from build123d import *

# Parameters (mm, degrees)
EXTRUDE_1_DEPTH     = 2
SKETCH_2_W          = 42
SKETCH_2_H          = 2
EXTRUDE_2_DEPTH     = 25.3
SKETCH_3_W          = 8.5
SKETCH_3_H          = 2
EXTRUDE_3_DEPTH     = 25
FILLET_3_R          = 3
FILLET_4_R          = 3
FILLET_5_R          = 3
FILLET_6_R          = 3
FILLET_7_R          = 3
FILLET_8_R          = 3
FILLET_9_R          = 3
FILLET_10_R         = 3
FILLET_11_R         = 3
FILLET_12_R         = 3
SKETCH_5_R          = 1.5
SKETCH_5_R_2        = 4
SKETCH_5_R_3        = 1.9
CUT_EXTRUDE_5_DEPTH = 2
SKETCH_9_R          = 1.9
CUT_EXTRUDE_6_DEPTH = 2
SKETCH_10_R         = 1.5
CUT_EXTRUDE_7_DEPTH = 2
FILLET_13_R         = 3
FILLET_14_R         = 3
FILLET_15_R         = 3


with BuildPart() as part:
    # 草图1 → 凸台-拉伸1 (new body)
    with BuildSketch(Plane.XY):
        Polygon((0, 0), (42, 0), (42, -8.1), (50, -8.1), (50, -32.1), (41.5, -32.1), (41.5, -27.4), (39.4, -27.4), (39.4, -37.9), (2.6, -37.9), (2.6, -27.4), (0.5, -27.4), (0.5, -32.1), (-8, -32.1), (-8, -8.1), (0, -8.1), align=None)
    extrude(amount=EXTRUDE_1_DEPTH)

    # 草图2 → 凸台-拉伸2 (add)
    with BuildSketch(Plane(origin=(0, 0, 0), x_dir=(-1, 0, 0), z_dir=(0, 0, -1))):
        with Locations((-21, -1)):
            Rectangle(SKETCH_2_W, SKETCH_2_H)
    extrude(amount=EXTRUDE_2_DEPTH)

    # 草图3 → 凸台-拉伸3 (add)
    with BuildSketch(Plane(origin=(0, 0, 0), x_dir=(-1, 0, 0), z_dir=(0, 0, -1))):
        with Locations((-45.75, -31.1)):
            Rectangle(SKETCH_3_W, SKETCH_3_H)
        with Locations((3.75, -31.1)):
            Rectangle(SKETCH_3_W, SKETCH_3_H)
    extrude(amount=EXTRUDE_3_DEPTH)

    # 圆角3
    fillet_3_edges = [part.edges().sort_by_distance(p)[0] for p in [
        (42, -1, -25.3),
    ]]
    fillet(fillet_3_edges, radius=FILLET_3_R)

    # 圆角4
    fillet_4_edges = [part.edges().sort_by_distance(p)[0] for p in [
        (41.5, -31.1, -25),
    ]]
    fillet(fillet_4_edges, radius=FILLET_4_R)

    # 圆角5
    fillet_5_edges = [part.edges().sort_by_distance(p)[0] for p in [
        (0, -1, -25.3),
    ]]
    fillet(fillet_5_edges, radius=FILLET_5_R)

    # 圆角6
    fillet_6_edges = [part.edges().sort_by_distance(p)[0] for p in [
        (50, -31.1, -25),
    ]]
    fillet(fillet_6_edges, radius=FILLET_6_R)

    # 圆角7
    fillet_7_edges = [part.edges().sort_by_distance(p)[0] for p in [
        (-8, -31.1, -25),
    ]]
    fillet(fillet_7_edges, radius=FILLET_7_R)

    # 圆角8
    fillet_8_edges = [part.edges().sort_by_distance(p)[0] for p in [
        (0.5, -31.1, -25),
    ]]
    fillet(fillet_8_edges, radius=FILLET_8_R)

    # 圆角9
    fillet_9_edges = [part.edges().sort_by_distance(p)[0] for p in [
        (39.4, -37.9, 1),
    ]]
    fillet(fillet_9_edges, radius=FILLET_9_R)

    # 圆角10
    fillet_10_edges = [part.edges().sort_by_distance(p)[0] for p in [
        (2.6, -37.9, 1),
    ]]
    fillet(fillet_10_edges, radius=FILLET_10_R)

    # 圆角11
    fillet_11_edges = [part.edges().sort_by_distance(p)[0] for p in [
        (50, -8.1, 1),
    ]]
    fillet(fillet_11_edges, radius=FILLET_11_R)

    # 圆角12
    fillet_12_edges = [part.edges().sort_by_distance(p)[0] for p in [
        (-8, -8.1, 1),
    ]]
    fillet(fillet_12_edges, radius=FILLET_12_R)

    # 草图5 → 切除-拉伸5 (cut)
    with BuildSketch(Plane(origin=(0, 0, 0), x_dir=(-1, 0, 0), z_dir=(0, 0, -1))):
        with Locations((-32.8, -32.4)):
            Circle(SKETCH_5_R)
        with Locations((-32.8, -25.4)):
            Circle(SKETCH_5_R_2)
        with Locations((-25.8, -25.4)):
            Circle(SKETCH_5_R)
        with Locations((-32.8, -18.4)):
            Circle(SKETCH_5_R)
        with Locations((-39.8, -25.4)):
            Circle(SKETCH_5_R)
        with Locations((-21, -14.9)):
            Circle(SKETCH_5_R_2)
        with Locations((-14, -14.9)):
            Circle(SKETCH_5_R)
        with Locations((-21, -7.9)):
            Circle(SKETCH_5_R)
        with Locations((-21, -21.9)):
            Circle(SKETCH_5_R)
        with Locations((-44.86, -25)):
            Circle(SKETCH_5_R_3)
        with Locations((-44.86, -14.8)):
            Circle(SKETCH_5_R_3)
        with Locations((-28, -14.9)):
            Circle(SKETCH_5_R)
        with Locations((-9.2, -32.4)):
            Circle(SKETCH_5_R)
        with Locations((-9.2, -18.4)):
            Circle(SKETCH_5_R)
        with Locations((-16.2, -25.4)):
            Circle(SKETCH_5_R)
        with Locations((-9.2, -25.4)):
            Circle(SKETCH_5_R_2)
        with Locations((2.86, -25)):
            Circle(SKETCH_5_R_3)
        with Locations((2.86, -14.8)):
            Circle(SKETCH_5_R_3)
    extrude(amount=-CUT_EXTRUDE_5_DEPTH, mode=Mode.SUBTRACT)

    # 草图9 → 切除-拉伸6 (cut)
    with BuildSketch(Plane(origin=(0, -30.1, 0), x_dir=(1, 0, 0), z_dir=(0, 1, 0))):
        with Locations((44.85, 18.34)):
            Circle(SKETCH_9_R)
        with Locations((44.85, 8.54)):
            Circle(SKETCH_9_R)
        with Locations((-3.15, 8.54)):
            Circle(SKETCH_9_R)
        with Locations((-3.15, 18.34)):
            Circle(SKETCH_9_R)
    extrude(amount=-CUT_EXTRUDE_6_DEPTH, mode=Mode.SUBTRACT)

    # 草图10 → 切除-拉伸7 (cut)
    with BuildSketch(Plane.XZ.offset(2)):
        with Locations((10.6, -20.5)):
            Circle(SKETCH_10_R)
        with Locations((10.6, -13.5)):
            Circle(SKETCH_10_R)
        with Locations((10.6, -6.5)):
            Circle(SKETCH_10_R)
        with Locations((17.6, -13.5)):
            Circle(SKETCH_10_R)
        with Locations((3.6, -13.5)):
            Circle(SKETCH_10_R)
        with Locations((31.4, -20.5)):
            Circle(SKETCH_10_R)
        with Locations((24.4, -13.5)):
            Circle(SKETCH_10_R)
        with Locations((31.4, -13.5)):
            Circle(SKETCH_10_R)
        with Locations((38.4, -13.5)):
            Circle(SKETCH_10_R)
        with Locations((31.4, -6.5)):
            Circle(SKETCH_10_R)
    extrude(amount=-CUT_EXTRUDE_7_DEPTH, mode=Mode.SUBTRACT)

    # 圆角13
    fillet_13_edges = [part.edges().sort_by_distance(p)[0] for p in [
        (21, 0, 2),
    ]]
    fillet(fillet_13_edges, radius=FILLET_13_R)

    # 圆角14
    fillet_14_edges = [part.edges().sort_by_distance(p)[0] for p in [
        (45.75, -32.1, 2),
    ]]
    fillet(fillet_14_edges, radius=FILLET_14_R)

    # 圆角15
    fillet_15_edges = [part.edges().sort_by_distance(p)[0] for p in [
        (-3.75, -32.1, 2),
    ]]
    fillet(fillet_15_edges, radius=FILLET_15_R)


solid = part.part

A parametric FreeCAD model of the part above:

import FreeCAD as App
import Part
import Sketcher

V = App.Vector


def edges_at(feature, points):
    """Names of the edges that pass closest to the given points."""
    edges = feature.Shape.Edges
    near = lambda p: min(range(len(edges)), key=lambda i: edges[i].distToShape(Part.Vertex(*p))[0])
    return sorted({f"Edge{near(p) + 1}" for p in points})

doc = App.newDocument("Part")
body = doc.addObject("PartDesign::Body", "Body")

# Sketch on XY plane
sketch1 = doc.addObject("Sketcher::SketchObject", "Sketch")
body.addObject(sketch1)
sketch1.AttachmentSupport = (doc.XY_Plane, [""])
sketch1.MapMode = "FlatFace"
sketch1.addGeometry([
    Part.LineSegment(V(42, 0, 0), V(0, 0, 0)),  # 0
    Part.LineSegment(V(0, 0, 0), V(0, -8.1, 0)),  # 1
    Part.LineSegment(V(0, -8.1, 0), V(-8, -8.1, 0)),  # 2
    Part.LineSegment(V(-8, -8.1, 0), V(-8, -32.1, 0)),  # 3
    Part.LineSegment(V(-8, -32.1, 0), V(0.5, -32.1, 0)),  # 4
    Part.LineSegment(V(0.5, -32.1, 0), V(0.5, -27.4, 0)),  # 5
    Part.LineSegment(V(0.5, -27.4, 0), V(2.6, -27.4, 0)),  # 6
    Part.LineSegment(V(2.6, -27.4, 0), V(2.6, -37.9, 0)),  # 7
    Part.LineSegment(V(2.6, -37.9, 0), V(39.4, -37.9, 0)),  # 8
    Part.LineSegment(V(39.4, -37.9, 0), V(39.4, -27.4, 0)),  # 9
    Part.LineSegment(V(39.4, -27.4, 0), V(41.5, -27.4, 0)),  # 10
    Part.LineSegment(V(41.5, -27.4, 0), V(41.5, -32.1, 0)),  # 11
    Part.LineSegment(V(41.5, -32.1, 0), V(50, -32.1, 0)),  # 12
    Part.LineSegment(V(50, -32.1, 0), V(50, -8.1, 0)),  # 13
    Part.LineSegment(V(50, -8.1, 0), V(42, -8.1, 0)),  # 14
    Part.LineSegment(V(42, -8.1, 0), V(42, 0, 0)),  # 15
], False)
sketch1.addConstraint([
    Sketcher.Constraint("Coincident", 0, 2, 1, 1),
    Sketcher.Constraint("Coincident", 1, 2, 2, 1),
    Sketcher.Constraint("Coincident", 2, 2, 3, 1),
    Sketcher.Constraint("Coincident", 3, 2, 4, 1),
    Sketcher.Constraint("Coincident", 4, 2, 5, 1),
    Sketcher.Constraint("Coincident", 5, 2, 6, 1),
    Sketcher.Constraint("Coincident", 6, 2, 7, 1),
    Sketcher.Constraint("Coincident", 7, 2, 8, 1),
    Sketcher.Constraint("Coincident", 8, 2, 9, 1),
    Sketcher.Constraint("Coincident", 9, 2, 10, 1),
    Sketcher.Constraint("Coincident", 10, 2, 11, 1),
    Sketcher.Constraint("Coincident", 11, 2, 12, 1),
    Sketcher.Constraint("Coincident", 12, 2, 13, 1),
    Sketcher.Constraint("Coincident", 13, 2, 14, 1),
    Sketcher.Constraint("Coincident", 14, 2, 15, 1),
    Sketcher.Constraint("Coincident", 15, 2, 0, 1),
    Sketcher.Constraint("Horizontal", 0),
    Sketcher.Constraint("Vertical", 1),
    Sketcher.Constraint("Horizontal", 2),
    Sketcher.Constraint("Vertical", 3),
    Sketcher.Constraint("Horizontal", 4),
    Sketcher.Constraint("Vertical", 5),
    Sketcher.Constraint("Horizontal", 6),
    Sketcher.Constraint("Vertical", 7),
    Sketcher.Constraint("Horizontal", 8),
    Sketcher.Constraint("Vertical", 9),
    Sketcher.Constraint("Horizontal", 10),
    Sketcher.Constraint("Vertical", 11),
    Sketcher.Constraint("Horizontal", 12),
    Sketcher.Constraint("Vertical", 13),
    Sketcher.Constraint("Horizontal", 14),
    Sketcher.Constraint("Vertical", 15),
    Sketcher.Constraint("Coincident", 0, 2, -1, 1),
    Sketcher.Constraint("Horizontal", 6, 2, 9, 2),
    Sketcher.Constraint("Horizontal", 4, 2, 11, 2),
    Sketcher.Constraint("Horizontal", 2, 2, 13, 2),
    Sketcher.Constraint("Equal", 6, 10),
    Sketcher.Constraint("Equal", 4, 12),
    Sketcher.Constraint("Equal", 2, 14),
    Sketcher.Constraint("DistanceX", 0, 2, 0, 1, 42.0),
    Sketcher.Constraint("DistanceX", 2, 2, 2, 1, 8.0),
    Sketcher.Constraint("DistanceY", 3, 2, 3, 1, 24.0),
    Sketcher.Constraint("DistanceX", 4, 1, 4, 2, 8.5),
    Sketcher.Constraint("DistanceX", 6, 1, 6, 2, 2.1),
    Sketcher.Constraint("DistanceY", 1, 2, 1, 1, 8.1),
    Sketcher.Constraint("DistanceY", 5, 1, 5, 2, 4.7),
    Sketcher.Constraint("DistanceY", 7, 2, 7, 1, 10.5),
])
pad1 = doc.addObject("PartDesign::Pad", "Pad")
body.addObject(pad1)
pad1.Profile = sketch1
pad1.Length = 2

# Sketch on XY plane
sketch2 = doc.addObject("Sketcher::SketchObject", "Sketch001")
body.addObject(sketch2)
sketch2.AttachmentSupport = (doc.XY_Plane, [""])
sketch2.MapMode = "FlatFace"
sketch2.addGeometry([
    Part.LineSegment(V(42, 0, 0), V(42, -2, 0)),
    Part.LineSegment(V(42, -2, 0), V(0, -2, 0)),
    Part.LineSegment(V(0, -2, 0), V(0, 0, 0)),
    Part.LineSegment(V(0, 0, 0), V(42, 0, 0)),
], False)
sketch2.addConstraint([
    Sketcher.Constraint("Coincident", 0, 2, 1, 1),
    Sketcher.Constraint("Coincident", 1, 2, 2, 1),
    Sketcher.Constraint("Coincident", 2, 2, 3, 1),
    Sketcher.Constraint("Coincident", 3, 2, 0, 1),
    Sketcher.Constraint("Vertical", 0),
    Sketcher.Constraint("Horizontal", 1),
    Sketcher.Constraint("Vertical", 2),
    Sketcher.Constraint("Horizontal", 3),
    Sketcher.Constraint("Coincident", 2, 2, -1, 1),
    Sketcher.Constraint("DistanceX", 1, 2, 1, 1, 42.0),
    Sketcher.Constraint("DistanceY", 0, 2, 0, 1, 2.0),
])
pad2 = doc.addObject("PartDesign::Pad", "Pad001")
body.addObject(pad2)
pad2.Profile = sketch2
pad2.Length = 25.3
pad2.Reversed = True

# Sketch on XY plane
sketch3 = doc.addObject("Sketcher::SketchObject", "Sketch002")
body.addObject(sketch3)
sketch3.AttachmentSupport = (doc.XY_Plane, [""])
sketch3.MapMode = "FlatFace"
sketch3.addGeometry([
    Part.LineSegment(V(50, -30.1, 0), V(50, -32.1, 0)),  # 0
    Part.LineSegment(V(50, -32.1, 0), V(41.5, -32.1, 0)),  # 1
    Part.LineSegment(V(41.5, -32.1, 0), V(41.5, -30.1, 0)),  # 2
    Part.LineSegment(V(41.5, -30.1, 0), V(50, -30.1, 0)),  # 3
    Part.LineSegment(V(0.5, -30.1, 0), V(0.5, -32.1, 0)),  # 4
    Part.LineSegment(V(0.5, -32.1, 0), V(-8, -32.1, 0)),  # 5
    Part.LineSegment(V(-8, -32.1, 0), V(-8, -30.1, 0)),  # 6
    Part.LineSegment(V(-8, -30.1, 0), V(0.5, -30.1, 0)),  # 7
], False)
sketch3.addConstraint([
    Sketcher.Constraint("Coincident", 0, 2, 1, 1),
    Sketcher.Constraint("Coincident", 1, 2, 2, 1),
    Sketcher.Constraint("Coincident", 2, 2, 3, 1),
    Sketcher.Constraint("Coincident", 3, 2, 0, 1),
    Sketcher.Constraint("Coincident", 4, 2, 5, 1),
    Sketcher.Constraint("Coincident", 5, 2, 6, 1),
    Sketcher.Constraint("Coincident", 6, 2, 7, 1),
    Sketcher.Constraint("Coincident", 7, 2, 4, 1),
    Sketcher.Constraint("Vertical", 0),
    Sketcher.Constraint("Horizontal", 1),
    Sketcher.Constraint("Vertical", 2),
    Sketcher.Constraint("Horizontal", 3),
    Sketcher.Constraint("Vertical", 4),
    Sketcher.Constraint("Horizontal", 5),
    Sketcher.Constraint("Vertical", 6),
    Sketcher.Constraint("Horizontal", 7),
    Sketcher.Constraint("Horizontal", 1, 2, 4, 2),
    Sketcher.Constraint("Horizontal", 3, 2, 6, 2),
    Sketcher.Constraint("Equal", 3, 5),
    Sketcher.Constraint("DistanceY", 0, 2, 0, 1, 2.0),
    Sketcher.Constraint("DistanceX", 1, 2, 1, 1, 8.5),
    Sketcher.Constraint("DistanceX", -1, 1, 0, 2, 50.0),
    Sketcher.Constraint("DistanceX", 5, 2, -1, 1, 8.0),
    Sketcher.Constraint("DistanceY", 0, 2, -1, 1, 32.1),
])
pad3 = doc.addObject("PartDesign::Pad", "Pad002")
body.addObject(pad3)
pad3.Profile = sketch3
pad3.Length = 25
pad3.Reversed = True
doc.recompute()

fillet = doc.addObject("PartDesign::Fillet", "Fillet")
body.addObject(fillet)
fillet.Base = (pad3, edges_at(pad3, [(42, -1, -25.3)]))
fillet.Radius = 3
doc.recompute()

fillet2 = doc.addObject("PartDesign::Fillet", "Fillet001")
body.addObject(fillet2)
fillet2.Base = (fillet, edges_at(fillet, [(41.5, -31.1, -25)]))
fillet2.Radius = 3
doc.recompute()

fillet3 = doc.addObject("PartDesign::Fillet", "Fillet002")
body.addObject(fillet3)
fillet3.Base = (fillet2, edges_at(fillet2, [(0, -1, -25.3)]))
fillet3.Radius = 3
doc.recompute()

fillet4 = doc.addObject("PartDesign::Fillet", "Fillet003")
body.addObject(fillet4)
fillet4.Base = (fillet3, edges_at(fillet3, [(50, -31.1, -25)]))
fillet4.Radius = 3
doc.recompute()

fillet5 = doc.addObject("PartDesign::Fillet", "Fillet004")
body.addObject(fillet5)
fillet5.Base = (fillet4, edges_at(fillet4, [(-8, -31.1, -25)]))
fillet5.Radius = 3
doc.recompute()

fillet6 = doc.addObject("PartDesign::Fillet", "Fillet005")
body.addObject(fillet6)
fillet6.Base = (fillet5, edges_at(fillet5, [(0.5, -31.1, -25)]))
fillet6.Radius = 3
doc.recompute()

fillet7 = doc.addObject("PartDesign::Fillet", "Fillet006")
body.addObject(fillet7)
fillet7.Base = (fillet6, edges_at(fillet6, [(39.4, -37.9, 1)]))
fillet7.Radius = 3
doc.recompute()

fillet8 = doc.addObject("PartDesign::Fillet", "Fillet007")
body.addObject(fillet8)
fillet8.Base = (fillet7, edges_at(fillet7, [(2.6, -37.9, 1)]))
fillet8.Radius = 3
doc.recompute()

fillet9 = doc.addObject("PartDesign::Fillet", "Fillet008")
body.addObject(fillet9)
fillet9.Base = (fillet8, edges_at(fillet8, [(50, -8.1, 1)]))
fillet9.Radius = 3
doc.recompute()

fillet10 = doc.addObject("PartDesign::Fillet", "Fillet009")
body.addObject(fillet10)
fillet10.Base = (fillet9, edges_at(fillet9, [(-8, -8.1, 1)]))
fillet10.Radius = 3

# Sketch on XY plane
sketch4 = doc.addObject("Sketcher::SketchObject", "Sketch003")
body.addObject(sketch4)
sketch4.AttachmentSupport = (doc.XY_Plane, [""])
sketch4.MapMode = "FlatFace"
sketch4.addGeometry([
    Part.Circle(V(32.8, -32.4, 0), V(0, 0, 1), 1.5),  # 0
    Part.Circle(V(32.8, -25.4, 0), V(0, 0, 1), 4),  # 1
    Part.Circle(V(25.8, -25.4, 0), V(0, 0, 1), 1.5),  # 2
    Part.Circle(V(32.8, -18.4, 0), V(0, 0, 1), 1.5),  # 3
    Part.Circle(V(39.8, -25.4, 0), V(0, 0, 1), 1.5),  # 4
    Part.Circle(V(21, -14.9, 0), V(0, 0, 1), 4),  # 5
    Part.Circle(V(14, -14.9, 0), V(0, 0, 1), 1.5),  # 6
    Part.Circle(V(21, -7.9, 0), V(0, 0, 1), 1.5),  # 7
    Part.Circle(V(21, -21.9, 0), V(0, 0, 1), 1.5),  # 8
    Part.Circle(V(44.9, -25, 0), V(0, 0, 1), 1.9),  # 9
    Part.Circle(V(44.9, -14.8, 0), V(0, 0, 1), 1.9),  # 10
    Part.Circle(V(28, -14.9, 0), V(0, 0, 1), 1.5),  # 11
    Part.Circle(V(9.2, -32.4, 0), V(0, 0, 1), 1.5),  # 12
    Part.Circle(V(9.2, -18.4, 0), V(0, 0, 1), 1.5),  # 13
    Part.Circle(V(16.2, -25.4, 0), V(0, 0, 1), 1.5),  # 14
    Part.Circle(V(9.2, -25.4, 0), V(0, 0, 1), 4),  # 15
    Part.Circle(V(-2.9, -25, 0), V(0, 0, 1), 1.9),  # 16
    Part.Circle(V(-2.9, -14.8, 0), V(0, 0, 1), 1.9),  # 17
], False)
sketch4.addConstraint([
    Sketcher.Constraint("Equal", 0, 2),
    Sketcher.Constraint("Equal", 2, 3),
    Sketcher.Constraint("Equal", 3, 4),
    Sketcher.Constraint("Equal", 1, 5),
    Sketcher.Constraint("Equal", 4, 6),
    Sketcher.Constraint("Equal", 6, 7),
    Sketcher.Constraint("Equal", 7, 8),
    Sketcher.Constraint("Equal", 9, 10),
    Sketcher.Constraint("Equal", 8, 11),
    Sketcher.Constraint("Equal", 11, 12),
    Sketcher.Constraint("Equal", 12, 13),
    Sketcher.Constraint("Equal", 13, 14),
    Sketcher.Constraint("Equal", 5, 15),
    Sketcher.Constraint("Equal", 10, 16),
    Sketcher.Constraint("Equal", 16, 17),
    Sketcher.Constraint("Horizontal", 1, 3, 2, 3),
    Sketcher.Constraint("Horizontal", 2, 3, 4, 3),
    Sketcher.Constraint("Horizontal", 5, 3, 6, 3),
    Sketcher.Constraint("Horizontal", 6, 3, 11, 3),
    Sketcher.Constraint("Horizontal", 0, 3, 12, 3),
    Sketcher.Constraint("Horizontal", 3, 3, 13, 3),
    Sketcher.Constraint("Horizontal", 4, 3, 14, 3),
    Sketcher.Constraint("Horizontal", 14, 3, 15, 3),
    Sketcher.Constraint("Horizontal", 9, 3, 16, 3),
    Sketcher.Constraint("Horizontal", 10, 3, 17, 3),
    Sketcher.Constraint("Vertical", 0, 3, 1, 3),
    Sketcher.Constraint("Vertical", 1, 3, 3, 3),
    Sketcher.Constraint("Vertical", 5, 3, 7, 3),
    Sketcher.Constraint("Vertical", 7, 3, 8, 3),
    Sketcher.Constraint("Vertical", 9, 3, 10, 3),
    Sketcher.Constraint("Vertical", 12, 3, 13, 3),
    Sketcher.Constraint("Vertical", 13, 3, 15, 3),
    Sketcher.Constraint("Vertical", 16, 3, 17, 3),
    Sketcher.Constraint("Diameter", 0, 3.0),
    Sketcher.Constraint("Diameter", 1, 8.0),
    Sketcher.Constraint("Diameter", 9, 3.8),
    Sketcher.Constraint("DistanceX", -1, 1, 5, 3, 21.0),
    Sketcher.Constraint("DistanceX", -1, 1, 6, 3, 14.0),
    Sketcher.Constraint("DistanceY", 9, 3, -1, 1, 25.0),
    Sketcher.Constraint("DistanceX", -1, 1, 11, 3, 28.0),
    Sketcher.Constraint("DistanceY", 0, 3, 1, 3, 7.0),
    Sketcher.Constraint("DistanceX", 2, 3, 1, 3, 7.0),
    Sketcher.Constraint("DistanceY", 1, 3, 3, 3, 7.0),
    Sketcher.Constraint("DistanceX", 1, 3, 4, 3, 7.0),
    Sketcher.Constraint("DistanceY", 5, 3, 7, 3, 7.0),
    Sketcher.Constraint("DistanceY", 8, 3, 5, 3, 7.0),
    Sketcher.Constraint("DistanceX", 12, 3, 14, 3, 7.0),
    Sketcher.Constraint("DistanceX", -1, 1, 0, 3, 32.8),
    Sketcher.Constraint("DistanceY", 0, 3, -1, 1, 32.4),
    Sketcher.Constraint("DistanceY", 5, 3, -1, 1, 14.9),
    Sketcher.Constraint("DistanceY", 10, 3, -1, 1, 14.8),
    Sketcher.Constraint("DistanceX", -1, 1, 12, 3, 9.2),
    Sketcher.Constraint("DistanceX", -1, 1, 9, 3, 44.86),
    Sketcher.Constraint("DistanceX", 16, 3, -1, 1, 2.86),
])
pocket1 = doc.addObject("PartDesign::Pocket", "Pocket")
body.addObject(pocket1)
pocket1.Profile = sketch4
pocket1.Length = 2
pocket1.Reversed = True

# Sketch on XZ plane
sketch5 = doc.addObject("Sketcher::SketchObject", "Sketch004")
body.addObject(sketch5)
sketch5.AttachmentSupport = (doc.XZ_Plane, [""])
sketch5.MapMode = "FlatFace"
sketch5.AttachmentOffset = App.Placement(V(0, 0, 30.1), App.Rotation())
sketch5.addGeometry([
    Part.Circle(V(44.9, -18.3, 0), V(0, 0, 1), 1.9),
    Part.Circle(V(44.9, -8.5, 0), V(0, 0, 1), 1.9),
    Part.Circle(V(-3.1, -8.5, 0), V(0, 0, 1), 1.9),
    Part.Circle(V(-3.1, -18.3, 0), V(0, 0, 1), 1.9),
], False)
sketch5.addConstraint([
    Sketcher.Constraint("Equal", 0, 1),
    Sketcher.Constraint("Equal", 1, 2),
    Sketcher.Constraint("Equal", 2, 3),
    Sketcher.Constraint("Horizontal", 1, 3, 2, 3),
    Sketcher.Constraint("Horizontal", 0, 3, 3, 3),
    Sketcher.Constraint("Vertical", 0, 3, 1, 3),
    Sketcher.Constraint("Vertical", 2, 3, 3, 3),
    Sketcher.Constraint("Diameter", 0, 3.8),
    Sketcher.Constraint("DistanceX", 2, 3, 1, 3, 48.0),
    Sketcher.Constraint("DistanceY", 0, 3, 1, 3, 9.8),
    Sketcher.Constraint("DistanceX", -1, 1, 0, 3, 44.85),
    Sketcher.Constraint("DistanceY", 0, 3, -1, 1, 18.34),
])
pocket2 = doc.addObject("PartDesign::Pocket", "Pocket001")
body.addObject(pocket2)
pocket2.Profile = sketch5
pocket2.Length = 2
pocket2.Reversed = True

# Sketch on XZ plane
sketch6 = doc.addObject("Sketcher::SketchObject", "Sketch005")
body.addObject(sketch6)
sketch6.AttachmentSupport = (doc.XZ_Plane, [""])
sketch6.MapMode = "FlatFace"
sketch6.AttachmentOffset = App.Placement(V(0, 0, 2), App.Rotation())
sketch6.addGeometry([
    Part.Circle(V(10.6, -20.5, 0), V(0, 0, 1), 1.5),  # 0
    Part.Circle(V(10.6, -13.5, 0), V(0, 0, 1), 1.5),  # 1
    Part.Circle(V(10.6, -6.5, 0), V(0, 0, 1), 1.5),  # 2
    Part.Circle(V(17.6, -13.5, 0), V(0, 0, 1), 1.5),  # 3
    Part.Circle(V(3.6, -13.5, 0), V(0, 0, 1), 1.5),  # 4
    Part.Circle(V(31.4, -20.5, 0), V(0, 0, 1), 1.5),  # 5
    Part.Circle(V(24.4, -13.5, 0), V(0, 0, 1), 1.5),  # 6
    Part.Circle(V(31.4, -13.5, 0), V(0, 0, 1), 1.5),  # 7
    Part.Circle(V(38.4, -13.5, 0), V(0, 0, 1), 1.5),  # 8
    Part.Circle(V(31.4, -6.5, 0), V(0, 0, 1), 1.5),  # 9
], False)
sketch6.addConstraint([
    Sketcher.Constraint("Equal", 0, 1),
    Sketcher.Constraint("Equal", 1, 2),
    Sketcher.Constraint("Equal", 2, 3),
    Sketcher.Constraint("Equal", 3, 4),
    Sketcher.Constraint("Equal", 4, 5),
    Sketcher.Constraint("Equal", 5, 6),
    Sketcher.Constraint("Equal", 6, 7),
    Sketcher.Constraint("Equal", 7, 8),
    Sketcher.Constraint("Equal", 8, 9),
    Sketcher.Constraint("Horizontal", 1, 3, 3, 3),
    Sketcher.Constraint("Horizontal", 3, 3, 4, 3),
    Sketcher.Constraint("Horizontal", 0, 3, 5, 3),
    Sketcher.Constraint("Horizontal", 4, 3, 6, 3),
    Sketcher.Constraint("Horizontal", 6, 3, 7, 3),
    Sketcher.Constraint("Horizontal", 7, 3, 8, 3),
    Sketcher.Constraint("Horizontal", 2, 3, 9, 3),
    Sketcher.Constraint("Vertical", 0, 3, 1, 3),
    Sketcher.Constraint("Vertical", 1, 3, 2, 3),
    Sketcher.Constraint("Vertical", 5, 3, 7, 3),
    Sketcher.Constraint("Vertical", 7, 3, 9, 3),
    Sketcher.Constraint("Diameter", 0, 3.0),
    Sketcher.Constraint("DistanceY", 0, 3, 1, 3, 7.0),
    Sketcher.Constraint("DistanceY", 1, 3, 2, 3, 7.0),
    Sketcher.Constraint("DistanceX", 1, 3, 3, 3, 7.0),
    Sketcher.Constraint("DistanceX", 4, 3, 1, 3, 7.0),
    Sketcher.Constraint("DistanceX", 6, 3, 5, 3, 7.0),
    Sketcher.Constraint("DistanceX", 7, 3, 8, 3, 7.0),
    Sketcher.Constraint("DistanceX", -1, 1, 0, 3, 10.6),
    Sketcher.Constraint("DistanceY", 0, 3, -1, 1, 20.5),
    Sketcher.Constraint("DistanceX", -1, 1, 5, 3, 31.4),
])
pocket3 = doc.addObject("PartDesign::Pocket", "Pocket002")
body.addObject(pocket3)
pocket3.Profile = sketch6
pocket3.Length = 2
doc.recompute()

fillet11 = doc.addObject("PartDesign::Fillet", "Fillet010")
body.addObject(fillet11)
fillet11.Base = (pocket3, edges_at(pocket3, [(21, 0, 2)]))
fillet11.Radius = 3
doc.recompute()

fillet12 = doc.addObject("PartDesign::Fillet", "Fillet011")
body.addObject(fillet12)
fillet12.Base = (fillet11, edges_at(fillet11, [(45.75, -32.1, 2)]))
fillet12.Radius = 3
doc.recompute()

fillet13 = doc.addObject("PartDesign::Fillet", "Fillet012")
body.addObject(fillet13)
fillet13.Base = (fillet12, edges_at(fillet12, [(-3.75, -32.1, 2)]))
fillet13.Radius = 3

doc.recompute()
